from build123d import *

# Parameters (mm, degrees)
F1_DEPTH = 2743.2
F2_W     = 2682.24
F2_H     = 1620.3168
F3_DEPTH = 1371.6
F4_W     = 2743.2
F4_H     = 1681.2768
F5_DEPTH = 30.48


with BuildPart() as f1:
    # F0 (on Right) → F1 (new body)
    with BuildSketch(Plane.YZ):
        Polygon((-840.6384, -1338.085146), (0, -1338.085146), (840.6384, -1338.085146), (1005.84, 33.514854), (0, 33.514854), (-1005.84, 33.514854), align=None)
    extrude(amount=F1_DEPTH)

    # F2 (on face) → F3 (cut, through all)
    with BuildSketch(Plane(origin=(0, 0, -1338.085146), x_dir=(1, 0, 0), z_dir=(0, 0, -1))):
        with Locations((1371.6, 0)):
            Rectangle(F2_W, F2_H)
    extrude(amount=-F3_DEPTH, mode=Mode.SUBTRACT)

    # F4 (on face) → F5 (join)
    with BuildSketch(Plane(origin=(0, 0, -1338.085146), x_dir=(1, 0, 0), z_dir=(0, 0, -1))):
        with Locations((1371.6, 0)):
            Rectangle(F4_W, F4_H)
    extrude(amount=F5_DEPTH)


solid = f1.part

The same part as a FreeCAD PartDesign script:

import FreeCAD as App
import Part
import Sketcher
Q = App.Units.Quantity


def add_polygon(sketch, points):
    """Adds a closed chain of lines whose ends are joined by coincident constraints."""
    first, n = sketch.GeometryCount, len(points)
    for a, b in zip(points, points[1:] + points[:1]):
        sketch.addGeometry(Part.LineSegment(App.Vector(*a, 0), App.Vector(*b, 0)), False)
    for i in range(n):
        sketch.addConstraint(Sketcher.Constraint("Coincident", first + i, 2, first + (i + 1) % n, 1))

doc = App.newDocument("Part")
body = doc.addObject("PartDesign::Body", "Body")

# Sketch on YZ plane
sketch1 = body.newObject("Sketcher::SketchObject", "Sketch")
sketch1.AttachmentSupport = (doc.getObject("YZ_Plane"), [""])
sketch1.MapMode = "FlatFace"
add_polygon(sketch1, [(-841, -1338), (841, -1338), (1006, 34), (-1006, 34)])  # lines 0-3
sketch1.addConstraint([
    Sketcher.Constraint("Horizontal", 0),
    Sketcher.Constraint("Horizontal", 2),
    Sketcher.Constraint("Equal", 1, 3),
    Sketcher.Constraint("DistanceX", 2, 2, 2, 1, Q("79.2 in")),
    Sketcher.Constraint("DistanceY", 0, 2, 1, 2, Q("54 in")),
    Sketcher.Constraint("DistanceX", -1, 1, 1, 2, Q("39.6 in")),
    Sketcher.Constraint("DistanceX", 0, 1, 0, 2, Q("66.192 in")),
    Sketcher.Constraint("DistanceY", 0, 2, -1, 1, 1338.085146),
])
pad1 = body.newObject("PartDesign::Pad", "Pad")
pad1.Profile = sketch1
pad1.Length = Q("108 in")

# Sketch on XY plane
sketch2 = body.newObject("Sketcher::SketchObject", "Sketch001")
sketch2.AttachmentSupport = (doc.getObject("XY_Plane"), [""])
sketch2.MapMode = "FlatFace"
sketch2.AttachmentOffset = App.Placement(App.Vector(0, 0, -1338.085146), App.Rotation())
add_polygon(sketch2, [(30, -810), (30, 810), (2713, 810), (2713, -810)])  # lines 0-3
sketch2.addConstraint([
    Sketcher.Constraint("Vertical", 0),
    Sketcher.Constraint("Horizontal", 1),
    Sketcher.Constraint("Vertical", 2),
    Sketcher.Constraint("Horizontal", 3),
    Sketcher.Constraint("DistanceX", 1, 1, 1, 2, Q("105.6 in")),
    Sketcher.Constraint("DistanceX", -1, 1, 0, 2, Q("1.2 in")),
    Sketcher.Constraint("DistanceY", 0, 1, 0, 2, Q("63.792 in")),
    Sketcher.Constraint("DistanceY", -1, 1, 0, 2, Q("31.896 in")),
])
pocket1 = body.newObject("PartDesign::Pocket", "Pocket")
pocket1.Profile = sketch2
pocket1.Type = "ThroughAll"
pocket1.Reversed = True

# Sketch on XY plane
sketch3 = body.newObject("Sketcher::SketchObject", "Sketch002")
sketch3.AttachmentSupport = (doc.getObject("XY_Plane"), [""])
sketch3.MapMode = "FlatFace"
sketch3.AttachmentOffset = App.Placement(App.Vector(0, 0, -1338.085146), App.Rotation())
add_polygon(sketch3, [(0, -841), (0, 841), (2743, 841), (2743, -841)])  # lines 0-3
sketch3.addConstraint([
    Sketcher.Constraint("Vertical", 0),
    Sketcher.Constraint("Horizontal", 1),
    Sketcher.Constraint("Vertical", 2),
    Sketcher.Constraint("Horizontal", 3),
    Sketcher.Constraint("Symmetric", 0, 2, 3, 2, -1, 1),
    Sketcher.Constraint("DistanceX", 1, 1, 1, 2, Q("108 in")),
    Sketcher.Constraint("DistanceY", 0, 1, 0, 2, Q("66.192 in")),
])
pad2 = body.newObject("PartDesign::Pad", "Pad001")
pad2.Profile = sketch3
pad2.Length = Q("1.2 in")
pad2.Reversed = True

doc.recompute()
